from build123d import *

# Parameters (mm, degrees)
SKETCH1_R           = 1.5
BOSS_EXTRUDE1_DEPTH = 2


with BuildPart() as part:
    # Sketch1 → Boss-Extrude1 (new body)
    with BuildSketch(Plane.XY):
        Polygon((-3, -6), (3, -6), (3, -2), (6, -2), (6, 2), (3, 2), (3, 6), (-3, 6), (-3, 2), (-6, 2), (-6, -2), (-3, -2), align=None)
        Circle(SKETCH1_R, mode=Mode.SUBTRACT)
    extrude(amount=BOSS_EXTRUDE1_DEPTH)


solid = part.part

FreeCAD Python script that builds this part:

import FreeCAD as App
import Part
import Sketcher

doc = App.newDocument("Part")
params = doc.addObject("Spreadsheet::Sheet", "Params")
for row, (alias, value) in enumerate([
    ("sketch1_diameter", "3 mm"),
    ("sketch1_width", "6 mm"),
    ("sketch1_width2", "3 mm"),
    ("sketch1_height", "4 mm"),
    ("pad1_length", "2 mm"),
], start=1):
    params.set(f"A{row}", alias)
    params.set(f"B{row}", "=" + value)
    params.setAlias(f"B{row}", alias)

body = doc.addObject("PartDesign::Body", "Body")

sketch1 = doc.addObject("Sketcher::SketchObject", "Sketch")
body.addObject(sketch1)
sketch1.AttachmentSupport = (doc.XY_Plane, [""])
sketch1.MapMode = "FlatFace"
sketch1.addGeometry([
    Part.LineSegment(App.Vector(-3, -6, 0), App.Vector(3, -6, 0)),
    Part.LineSegment(App.Vector(3, -6, 0), App.Vector(3, -2, 0)),
    Part.LineSegment(App.Vector(3, -2, 0), App.Vector(6, -2, 0)),
    Part.LineSegment(App.Vector(6, -2, 0), App.Vector(6, 2, 0)),
    Part.LineSegment(App.Vector(6, 2, 0), App.Vector(3, 2, 0)),
    Part.LineSegment(App.Vector(3, 2, 0), App.Vector(3, 6, 0)),
    Part.LineSegment(App.Vector(3, 6, 0), App.Vector(-3, 6, 0)),
    Part.LineSegment(App.Vector(-3, 6, 0), App.Vector(-3, 2, 0)),
    Part.LineSegment(App.Vector(-3, 2, 0), App.Vector(-6, 2, 0)),
    Part.LineSegment(App.Vector(-6, 2, 0), App.Vector(-6, -2, 0)),
    Part.LineSegment(App.Vector(-6, -2, 0), App.Vector(-3, -2, 0)),
    Part.LineSegment(App.Vector(-3, -2, 0), App.Vector(-3, -6, 0)),
    Part.Circle(App.Vector(0, 0, 0), App.Vector(0, 0, 1), 1.5),
], False)
sketch1.addConstraint([
    Sketcher.Constraint("Coincident", 0, 2, 1, 1),
    Sketcher.Constraint("Coincident", 1, 2, 2, 1),
    Sketcher.Constraint("Coincident", 2, 2, 3, 1),
    Sketcher.Constraint("Coincident", 3, 2, 4, 1),
    Sketcher.Constraint("Coincident", 4, 2, 5, 1),
    Sketcher.Constraint("Coincident", 5, 2, 6, 1),
    Sketcher.Constraint("Coincident", 6, 2, 7, 1),
    Sketcher.Constraint("Coincident", 7, 2, 8, 1),
    Sketcher.Constraint("Coincident", 8, 2, 9, 1),
    Sketcher.Constraint("Coincident", 9, 2, 10, 1),
    Sketcher.Constraint("Coincident", 10, 2, 11, 1),
    Sketcher.Constraint("Coincident", 11, 2, 0, 1),
    Sketcher.Constraint("Horizontal", 0),
    Sketcher.Constraint("Vertical", 1),
    Sketcher.Constraint("Horizontal", 2),
    Sketcher.Constraint("Vertical", 3),
    Sketcher.Constraint("Horizontal", 4),
    Sketcher.Constraint("Vertical", 5),
    Sketcher.Constraint("Horizontal", 6),
    Sketcher.Constraint("Vertical", 7),
    Sketcher.Constraint("Horizontal", 8),
    Sketcher.Constraint("Vertical", 9),
    Sketcher.Constraint("Horizontal", 10),
    Sketcher.Constraint("Vertical", 11),
    Sketcher.Constraint("Coincident", 12, 3, -1, 1),
    Sketcher.Constraint("Symmetric", 0, 2, 6, 2, -1, 1),
    Sketcher.Constraint("Symmetric", 2, 2, 8, 2, -1, 1),
    Sketcher.Constraint("Symmetric", 4, 2, 10, 2, -1, 1),
    Sketcher.Constraint("Symmetric", 4, 2, 7, 2, -2),
    Sketcher.Constraint("Equal", 1, 3),
    Sketcher.Constraint("Diameter", 12, 3.0),
    Sketcher.Constraint("DistanceX", 0, 1, 0, 2, 6.0),
    Sketcher.Constraint("DistanceX", 2, 1, 2, 2, 3.0),
    Sketcher.Constraint("DistanceY", 1, 1, 1, 2, 4.0),
])
sketch1.setExpression("Constraints[30]", "Params.sketch1_diameter")
sketch1.setExpression("Constraints[31]", "Params.sketch1_width")
sketch1.setExpression("Constraints[32]", "Params.sketch1_width2")
sketch1.setExpression("Constraints[33]", "Params.sketch1_height")
pad1 = doc.addObject("PartDesign::Pad", "Pad")
body.addObject(pad1)
pad1.Profile = sketch1
pad1.setExpression("Length", "Params.pad1_length")

doc.recompute()
